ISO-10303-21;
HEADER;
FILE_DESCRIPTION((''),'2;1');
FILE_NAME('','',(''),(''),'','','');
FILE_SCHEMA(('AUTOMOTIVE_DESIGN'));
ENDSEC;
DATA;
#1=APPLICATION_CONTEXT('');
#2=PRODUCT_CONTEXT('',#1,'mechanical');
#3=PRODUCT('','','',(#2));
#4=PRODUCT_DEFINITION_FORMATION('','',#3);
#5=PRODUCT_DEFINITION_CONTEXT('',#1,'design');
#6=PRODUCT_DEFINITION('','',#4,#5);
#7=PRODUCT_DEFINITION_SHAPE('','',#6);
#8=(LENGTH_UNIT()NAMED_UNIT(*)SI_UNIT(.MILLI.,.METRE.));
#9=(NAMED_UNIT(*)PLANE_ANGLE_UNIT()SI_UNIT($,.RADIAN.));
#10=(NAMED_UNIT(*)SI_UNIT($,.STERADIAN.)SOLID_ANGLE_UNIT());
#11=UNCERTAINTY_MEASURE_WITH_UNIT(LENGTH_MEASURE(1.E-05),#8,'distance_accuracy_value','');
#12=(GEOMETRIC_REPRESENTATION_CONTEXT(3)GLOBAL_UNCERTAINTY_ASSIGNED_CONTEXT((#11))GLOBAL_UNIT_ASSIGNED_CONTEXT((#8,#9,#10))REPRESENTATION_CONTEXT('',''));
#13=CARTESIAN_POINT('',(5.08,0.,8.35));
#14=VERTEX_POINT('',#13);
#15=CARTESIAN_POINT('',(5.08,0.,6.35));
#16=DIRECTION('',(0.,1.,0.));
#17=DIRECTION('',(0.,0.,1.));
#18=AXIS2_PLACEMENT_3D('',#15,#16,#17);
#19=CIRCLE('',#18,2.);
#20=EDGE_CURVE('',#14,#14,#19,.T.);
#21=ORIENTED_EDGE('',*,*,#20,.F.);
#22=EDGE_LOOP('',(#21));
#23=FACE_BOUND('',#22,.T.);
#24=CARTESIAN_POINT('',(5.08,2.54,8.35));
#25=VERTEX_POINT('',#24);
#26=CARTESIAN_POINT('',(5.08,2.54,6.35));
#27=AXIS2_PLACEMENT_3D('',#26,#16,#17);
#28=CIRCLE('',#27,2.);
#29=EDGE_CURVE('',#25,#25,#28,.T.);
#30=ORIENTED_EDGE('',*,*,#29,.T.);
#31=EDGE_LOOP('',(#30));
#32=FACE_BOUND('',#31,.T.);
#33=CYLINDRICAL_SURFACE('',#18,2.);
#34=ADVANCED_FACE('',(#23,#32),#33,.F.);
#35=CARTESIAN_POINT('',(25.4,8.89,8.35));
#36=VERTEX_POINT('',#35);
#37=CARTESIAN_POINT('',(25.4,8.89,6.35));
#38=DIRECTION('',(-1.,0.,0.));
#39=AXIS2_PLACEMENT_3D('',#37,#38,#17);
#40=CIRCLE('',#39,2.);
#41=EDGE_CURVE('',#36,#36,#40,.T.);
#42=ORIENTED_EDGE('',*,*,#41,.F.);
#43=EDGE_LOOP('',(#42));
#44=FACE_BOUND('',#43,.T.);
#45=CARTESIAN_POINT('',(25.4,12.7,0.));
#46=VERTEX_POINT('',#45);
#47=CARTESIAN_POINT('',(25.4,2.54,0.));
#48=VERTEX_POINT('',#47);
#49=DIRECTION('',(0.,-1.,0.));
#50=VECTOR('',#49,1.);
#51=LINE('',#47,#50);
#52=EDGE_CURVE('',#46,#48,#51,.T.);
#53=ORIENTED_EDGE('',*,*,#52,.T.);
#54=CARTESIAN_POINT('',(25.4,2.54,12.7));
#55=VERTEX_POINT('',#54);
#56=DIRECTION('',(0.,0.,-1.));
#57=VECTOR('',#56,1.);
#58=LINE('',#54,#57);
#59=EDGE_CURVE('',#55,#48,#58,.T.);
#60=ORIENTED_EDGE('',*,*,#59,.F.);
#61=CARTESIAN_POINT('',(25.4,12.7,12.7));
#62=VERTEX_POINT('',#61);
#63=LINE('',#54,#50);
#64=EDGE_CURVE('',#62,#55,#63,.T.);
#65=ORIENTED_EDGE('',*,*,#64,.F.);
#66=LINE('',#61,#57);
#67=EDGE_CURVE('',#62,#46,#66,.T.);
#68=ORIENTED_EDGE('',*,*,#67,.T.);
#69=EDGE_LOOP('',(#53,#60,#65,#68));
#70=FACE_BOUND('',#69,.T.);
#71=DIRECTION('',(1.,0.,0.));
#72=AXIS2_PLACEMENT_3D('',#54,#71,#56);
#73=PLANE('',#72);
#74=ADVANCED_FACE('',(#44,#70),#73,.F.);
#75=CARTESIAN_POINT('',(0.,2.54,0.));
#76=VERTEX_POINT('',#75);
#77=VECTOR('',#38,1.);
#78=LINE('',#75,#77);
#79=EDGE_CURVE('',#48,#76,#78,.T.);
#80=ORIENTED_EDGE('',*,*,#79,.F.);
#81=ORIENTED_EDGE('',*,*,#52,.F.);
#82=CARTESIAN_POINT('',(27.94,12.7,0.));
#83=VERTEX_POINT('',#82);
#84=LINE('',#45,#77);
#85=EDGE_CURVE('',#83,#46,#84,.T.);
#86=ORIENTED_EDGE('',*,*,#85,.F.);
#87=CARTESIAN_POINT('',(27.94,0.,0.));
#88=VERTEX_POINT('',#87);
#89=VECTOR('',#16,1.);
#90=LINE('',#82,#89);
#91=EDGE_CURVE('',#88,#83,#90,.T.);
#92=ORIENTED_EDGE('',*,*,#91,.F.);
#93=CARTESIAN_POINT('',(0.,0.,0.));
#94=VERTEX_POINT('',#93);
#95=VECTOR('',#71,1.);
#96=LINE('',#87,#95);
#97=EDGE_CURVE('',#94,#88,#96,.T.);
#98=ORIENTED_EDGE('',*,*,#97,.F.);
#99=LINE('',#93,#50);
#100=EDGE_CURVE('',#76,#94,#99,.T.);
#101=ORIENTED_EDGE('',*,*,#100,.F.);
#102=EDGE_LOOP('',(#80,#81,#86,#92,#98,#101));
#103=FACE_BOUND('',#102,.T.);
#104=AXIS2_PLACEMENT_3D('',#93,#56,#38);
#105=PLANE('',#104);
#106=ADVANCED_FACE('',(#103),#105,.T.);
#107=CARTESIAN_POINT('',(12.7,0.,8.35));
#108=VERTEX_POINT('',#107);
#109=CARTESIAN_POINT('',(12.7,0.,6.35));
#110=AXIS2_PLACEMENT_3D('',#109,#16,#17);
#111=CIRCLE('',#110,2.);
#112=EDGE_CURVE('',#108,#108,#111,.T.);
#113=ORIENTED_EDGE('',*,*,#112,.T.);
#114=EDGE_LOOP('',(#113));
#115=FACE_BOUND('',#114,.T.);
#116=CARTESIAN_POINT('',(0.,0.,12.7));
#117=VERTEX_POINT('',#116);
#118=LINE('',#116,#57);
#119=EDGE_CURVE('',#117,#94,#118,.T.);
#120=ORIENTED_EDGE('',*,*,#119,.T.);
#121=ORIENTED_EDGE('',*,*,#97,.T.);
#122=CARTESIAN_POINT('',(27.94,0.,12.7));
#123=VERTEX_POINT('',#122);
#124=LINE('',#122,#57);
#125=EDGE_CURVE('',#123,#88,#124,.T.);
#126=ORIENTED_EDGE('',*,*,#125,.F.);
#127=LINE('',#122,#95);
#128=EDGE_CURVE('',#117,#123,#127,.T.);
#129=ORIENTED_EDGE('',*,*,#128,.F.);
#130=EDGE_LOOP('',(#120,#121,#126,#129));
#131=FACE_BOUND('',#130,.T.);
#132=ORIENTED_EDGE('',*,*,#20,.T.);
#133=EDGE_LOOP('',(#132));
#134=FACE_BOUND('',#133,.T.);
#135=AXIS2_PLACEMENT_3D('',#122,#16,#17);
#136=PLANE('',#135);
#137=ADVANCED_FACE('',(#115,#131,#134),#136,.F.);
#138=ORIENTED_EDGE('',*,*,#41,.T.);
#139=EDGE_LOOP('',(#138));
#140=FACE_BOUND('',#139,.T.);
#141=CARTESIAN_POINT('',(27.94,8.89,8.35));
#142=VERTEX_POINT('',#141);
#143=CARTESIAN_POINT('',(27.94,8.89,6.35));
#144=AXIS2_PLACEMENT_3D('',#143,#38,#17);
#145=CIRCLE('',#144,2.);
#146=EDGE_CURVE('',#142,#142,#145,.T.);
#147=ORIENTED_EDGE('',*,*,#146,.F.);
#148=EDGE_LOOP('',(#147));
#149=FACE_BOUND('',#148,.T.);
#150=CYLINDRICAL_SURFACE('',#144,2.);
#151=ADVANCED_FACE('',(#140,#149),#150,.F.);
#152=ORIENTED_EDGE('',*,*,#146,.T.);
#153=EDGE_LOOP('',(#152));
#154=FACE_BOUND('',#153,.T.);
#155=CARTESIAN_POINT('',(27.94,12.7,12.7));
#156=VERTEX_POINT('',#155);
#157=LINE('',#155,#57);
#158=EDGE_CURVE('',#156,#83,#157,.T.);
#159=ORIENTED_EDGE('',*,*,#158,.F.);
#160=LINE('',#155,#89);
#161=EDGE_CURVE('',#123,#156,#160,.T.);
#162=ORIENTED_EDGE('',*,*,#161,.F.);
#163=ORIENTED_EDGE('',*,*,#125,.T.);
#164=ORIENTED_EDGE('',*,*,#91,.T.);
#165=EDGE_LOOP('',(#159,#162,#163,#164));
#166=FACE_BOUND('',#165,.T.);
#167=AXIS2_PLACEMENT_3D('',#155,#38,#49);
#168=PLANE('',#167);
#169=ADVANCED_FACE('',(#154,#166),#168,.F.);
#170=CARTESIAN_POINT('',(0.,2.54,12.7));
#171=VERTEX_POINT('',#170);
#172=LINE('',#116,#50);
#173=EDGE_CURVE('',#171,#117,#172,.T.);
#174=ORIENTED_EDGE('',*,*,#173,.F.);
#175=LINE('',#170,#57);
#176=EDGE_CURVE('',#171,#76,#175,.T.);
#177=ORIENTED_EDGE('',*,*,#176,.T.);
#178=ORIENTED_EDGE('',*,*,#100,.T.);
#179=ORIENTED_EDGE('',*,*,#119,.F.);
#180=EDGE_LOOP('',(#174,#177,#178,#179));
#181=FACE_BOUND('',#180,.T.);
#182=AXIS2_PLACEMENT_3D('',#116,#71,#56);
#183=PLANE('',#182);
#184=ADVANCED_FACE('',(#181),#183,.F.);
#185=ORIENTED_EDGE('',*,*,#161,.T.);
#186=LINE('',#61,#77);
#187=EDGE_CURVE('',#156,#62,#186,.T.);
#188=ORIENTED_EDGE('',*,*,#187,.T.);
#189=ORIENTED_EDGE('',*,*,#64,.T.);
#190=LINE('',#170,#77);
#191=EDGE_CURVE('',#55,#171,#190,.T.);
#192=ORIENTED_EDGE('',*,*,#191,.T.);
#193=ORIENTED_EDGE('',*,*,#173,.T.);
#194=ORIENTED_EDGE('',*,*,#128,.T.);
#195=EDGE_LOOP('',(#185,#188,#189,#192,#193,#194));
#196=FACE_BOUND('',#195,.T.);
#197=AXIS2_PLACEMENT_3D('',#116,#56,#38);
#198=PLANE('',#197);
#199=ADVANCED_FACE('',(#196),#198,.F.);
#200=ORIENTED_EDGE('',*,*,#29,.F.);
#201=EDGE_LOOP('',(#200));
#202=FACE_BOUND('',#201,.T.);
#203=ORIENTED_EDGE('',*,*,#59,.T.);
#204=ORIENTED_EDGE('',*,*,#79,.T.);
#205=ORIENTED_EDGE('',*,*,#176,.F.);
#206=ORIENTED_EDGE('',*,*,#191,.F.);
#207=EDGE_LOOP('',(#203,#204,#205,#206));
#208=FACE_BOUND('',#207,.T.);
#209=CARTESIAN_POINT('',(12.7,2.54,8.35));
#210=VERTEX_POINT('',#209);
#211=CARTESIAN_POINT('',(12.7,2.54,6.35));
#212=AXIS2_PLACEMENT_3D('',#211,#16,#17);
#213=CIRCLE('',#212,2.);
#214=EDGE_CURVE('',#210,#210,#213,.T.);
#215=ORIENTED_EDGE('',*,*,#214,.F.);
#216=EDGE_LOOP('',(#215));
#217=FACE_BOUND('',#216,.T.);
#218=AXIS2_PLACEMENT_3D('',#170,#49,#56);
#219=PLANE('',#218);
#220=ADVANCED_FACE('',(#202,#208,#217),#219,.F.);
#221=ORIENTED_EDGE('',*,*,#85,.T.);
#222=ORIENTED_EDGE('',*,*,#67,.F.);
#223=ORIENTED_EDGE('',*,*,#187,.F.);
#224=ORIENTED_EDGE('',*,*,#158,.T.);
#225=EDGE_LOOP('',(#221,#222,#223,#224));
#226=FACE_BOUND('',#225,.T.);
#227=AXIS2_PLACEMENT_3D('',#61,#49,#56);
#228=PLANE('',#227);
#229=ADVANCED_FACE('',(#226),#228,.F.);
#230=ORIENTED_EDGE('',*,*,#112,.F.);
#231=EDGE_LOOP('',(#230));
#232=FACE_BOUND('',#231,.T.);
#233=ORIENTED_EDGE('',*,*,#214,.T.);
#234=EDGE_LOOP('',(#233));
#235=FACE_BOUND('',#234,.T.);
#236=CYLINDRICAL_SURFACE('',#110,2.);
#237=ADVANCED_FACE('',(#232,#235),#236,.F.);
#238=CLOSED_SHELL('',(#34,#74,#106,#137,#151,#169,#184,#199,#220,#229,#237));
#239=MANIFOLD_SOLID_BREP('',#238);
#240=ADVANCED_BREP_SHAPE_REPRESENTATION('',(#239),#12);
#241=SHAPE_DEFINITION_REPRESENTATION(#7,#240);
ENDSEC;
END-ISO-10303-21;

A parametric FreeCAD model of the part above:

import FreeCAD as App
import Part
import Sketcher

V = App.Vector
Q = App.Units.Quantity


def add_polygon(sketch, points):
    """Adds a closed chain of lines whose ends are joined by coincident constraints."""
    first, n = sketch.GeometryCount, len(points)
    for a, b in zip(points, points[1:] + points[:1]):
        sketch.addGeometry(Part.LineSegment(App.Vector(*a, 0), App.Vector(*b, 0)), False)
    for i in range(n):
        sketch.addConstraint(Sketcher.Constraint("Coincident", first + i, 2, first + (i + 1) % n, 1))

doc = App.newDocument("Part")
body = doc.addObject("PartDesign::Body", "Body")

# Sketch on XY plane
sketch1 = body.newObject("Sketcher::SketchObject", "Sketch")
sketch1.AttachmentSupport = (doc.getObject("XY_Plane"), [""])
sketch1.MapMode = "FlatFace"
add_polygon(sketch1, [(0, 2.5), (0, 0), (27.9, 0), (27.9, 12.7), (25.4, 12.7), (25.4, 2.5)])  # lines 0-5
sketch1.addConstraint([
    Sketcher.Constraint("Vertical", 0),
    Sketcher.Constraint("Horizontal", 1),
    Sketcher.Constraint("Vertical", 2),
    Sketcher.Constraint("Horizontal", 3),
    Sketcher.Constraint("Vertical", 4),
    Sketcher.Constraint("Horizontal", 5),
    Sketcher.Constraint("Coincident", 0, 2, -1, 1),
    Sketcher.Constraint("Equal", 3, 0),
    Sketcher.Constraint("DistanceX", 5, 2, 5, 1, Q("1 in")),
    Sketcher.Constraint("DistanceX", 1, 1, 1, 2, Q("1.1 in")),
    Sketcher.Constraint("DistanceY", 2, 1, 2, 2, Q("0.5 in")),
])
pad1 = body.newObject("PartDesign::Pad", "Pad")
pad1.Profile = sketch1
pad1.Length = Q("0.5 in")

# Sketch on XZ plane
sketch2 = body.newObject("Sketcher::SketchObject", "Sketch001")
sketch2.AttachmentSupport = (doc.getObject("XZ_Plane"), [""])
sketch2.MapMode = "FlatFace"
sketch2.AttachmentOffset = App.Placement(V(0, 0, -0.1 * 25.4), App.Rotation())
sketch2.addGeometry([
    Part.Circle(V(5.1, 6.3, 0), V(0, 0, 1), 2),
    Part.Circle(V(12.7, 6.3, 0), V(0, 0, 1), 2),
], False)
sketch2.addConstraint([
    Sketcher.Constraint("Equal", 0, 1),
    Sketcher.Constraint("Horizontal", 0, 3, 1, 3),
    Sketcher.Constraint("DistanceX", -1, 1, 0, 3, Q("0.2 in")),
    Sketcher.Constraint("DistanceX", -1, 1, 1, 3, Q("0.5 in")),
    Sketcher.Constraint("Diameter", 0, 4.0),
    Sketcher.Constraint("DistanceY", -1, 1, 0, 3, Q("0.25 in")),
])
pocket1 = body.newObject("PartDesign::Pocket", "Pocket")
pocket1.Profile = sketch2
pocket1.Type = "ThroughAll"
pocket1.Reversed = True

# Sketch on YZ plane
sketch3 = body.newObject("Sketcher::SketchObject", "Sketch002")
sketch3.AttachmentSupport = (doc.getObject("YZ_Plane"), [""])
sketch3.MapMode = "FlatFace"
sketch3.AttachmentOffset = App.Placement(V(0, 0, 1 * 25.4), App.Rotation())
sketch3.addGeometry(Part.Circle(V(8.9, 6.3, 0), V(0, 0, 1), 2), False)
sketch3.addConstraint([
    Sketcher.Constraint("Diameter", 0, 4.0),
    Sketcher.Constraint("DistanceX", -1, 1, 0, 3, Q("0.35 in")),
    Sketcher.Constraint("DistanceY", -1, 1, 0, 3, Q("0.25 in")),
])
pocket2 = body.newObject("PartDesign::Pocket", "Pocket001")
pocket2.Profile = sketch3
pocket2.Type = "ThroughAll"
pocket2.Reversed = True

doc.recompute()
